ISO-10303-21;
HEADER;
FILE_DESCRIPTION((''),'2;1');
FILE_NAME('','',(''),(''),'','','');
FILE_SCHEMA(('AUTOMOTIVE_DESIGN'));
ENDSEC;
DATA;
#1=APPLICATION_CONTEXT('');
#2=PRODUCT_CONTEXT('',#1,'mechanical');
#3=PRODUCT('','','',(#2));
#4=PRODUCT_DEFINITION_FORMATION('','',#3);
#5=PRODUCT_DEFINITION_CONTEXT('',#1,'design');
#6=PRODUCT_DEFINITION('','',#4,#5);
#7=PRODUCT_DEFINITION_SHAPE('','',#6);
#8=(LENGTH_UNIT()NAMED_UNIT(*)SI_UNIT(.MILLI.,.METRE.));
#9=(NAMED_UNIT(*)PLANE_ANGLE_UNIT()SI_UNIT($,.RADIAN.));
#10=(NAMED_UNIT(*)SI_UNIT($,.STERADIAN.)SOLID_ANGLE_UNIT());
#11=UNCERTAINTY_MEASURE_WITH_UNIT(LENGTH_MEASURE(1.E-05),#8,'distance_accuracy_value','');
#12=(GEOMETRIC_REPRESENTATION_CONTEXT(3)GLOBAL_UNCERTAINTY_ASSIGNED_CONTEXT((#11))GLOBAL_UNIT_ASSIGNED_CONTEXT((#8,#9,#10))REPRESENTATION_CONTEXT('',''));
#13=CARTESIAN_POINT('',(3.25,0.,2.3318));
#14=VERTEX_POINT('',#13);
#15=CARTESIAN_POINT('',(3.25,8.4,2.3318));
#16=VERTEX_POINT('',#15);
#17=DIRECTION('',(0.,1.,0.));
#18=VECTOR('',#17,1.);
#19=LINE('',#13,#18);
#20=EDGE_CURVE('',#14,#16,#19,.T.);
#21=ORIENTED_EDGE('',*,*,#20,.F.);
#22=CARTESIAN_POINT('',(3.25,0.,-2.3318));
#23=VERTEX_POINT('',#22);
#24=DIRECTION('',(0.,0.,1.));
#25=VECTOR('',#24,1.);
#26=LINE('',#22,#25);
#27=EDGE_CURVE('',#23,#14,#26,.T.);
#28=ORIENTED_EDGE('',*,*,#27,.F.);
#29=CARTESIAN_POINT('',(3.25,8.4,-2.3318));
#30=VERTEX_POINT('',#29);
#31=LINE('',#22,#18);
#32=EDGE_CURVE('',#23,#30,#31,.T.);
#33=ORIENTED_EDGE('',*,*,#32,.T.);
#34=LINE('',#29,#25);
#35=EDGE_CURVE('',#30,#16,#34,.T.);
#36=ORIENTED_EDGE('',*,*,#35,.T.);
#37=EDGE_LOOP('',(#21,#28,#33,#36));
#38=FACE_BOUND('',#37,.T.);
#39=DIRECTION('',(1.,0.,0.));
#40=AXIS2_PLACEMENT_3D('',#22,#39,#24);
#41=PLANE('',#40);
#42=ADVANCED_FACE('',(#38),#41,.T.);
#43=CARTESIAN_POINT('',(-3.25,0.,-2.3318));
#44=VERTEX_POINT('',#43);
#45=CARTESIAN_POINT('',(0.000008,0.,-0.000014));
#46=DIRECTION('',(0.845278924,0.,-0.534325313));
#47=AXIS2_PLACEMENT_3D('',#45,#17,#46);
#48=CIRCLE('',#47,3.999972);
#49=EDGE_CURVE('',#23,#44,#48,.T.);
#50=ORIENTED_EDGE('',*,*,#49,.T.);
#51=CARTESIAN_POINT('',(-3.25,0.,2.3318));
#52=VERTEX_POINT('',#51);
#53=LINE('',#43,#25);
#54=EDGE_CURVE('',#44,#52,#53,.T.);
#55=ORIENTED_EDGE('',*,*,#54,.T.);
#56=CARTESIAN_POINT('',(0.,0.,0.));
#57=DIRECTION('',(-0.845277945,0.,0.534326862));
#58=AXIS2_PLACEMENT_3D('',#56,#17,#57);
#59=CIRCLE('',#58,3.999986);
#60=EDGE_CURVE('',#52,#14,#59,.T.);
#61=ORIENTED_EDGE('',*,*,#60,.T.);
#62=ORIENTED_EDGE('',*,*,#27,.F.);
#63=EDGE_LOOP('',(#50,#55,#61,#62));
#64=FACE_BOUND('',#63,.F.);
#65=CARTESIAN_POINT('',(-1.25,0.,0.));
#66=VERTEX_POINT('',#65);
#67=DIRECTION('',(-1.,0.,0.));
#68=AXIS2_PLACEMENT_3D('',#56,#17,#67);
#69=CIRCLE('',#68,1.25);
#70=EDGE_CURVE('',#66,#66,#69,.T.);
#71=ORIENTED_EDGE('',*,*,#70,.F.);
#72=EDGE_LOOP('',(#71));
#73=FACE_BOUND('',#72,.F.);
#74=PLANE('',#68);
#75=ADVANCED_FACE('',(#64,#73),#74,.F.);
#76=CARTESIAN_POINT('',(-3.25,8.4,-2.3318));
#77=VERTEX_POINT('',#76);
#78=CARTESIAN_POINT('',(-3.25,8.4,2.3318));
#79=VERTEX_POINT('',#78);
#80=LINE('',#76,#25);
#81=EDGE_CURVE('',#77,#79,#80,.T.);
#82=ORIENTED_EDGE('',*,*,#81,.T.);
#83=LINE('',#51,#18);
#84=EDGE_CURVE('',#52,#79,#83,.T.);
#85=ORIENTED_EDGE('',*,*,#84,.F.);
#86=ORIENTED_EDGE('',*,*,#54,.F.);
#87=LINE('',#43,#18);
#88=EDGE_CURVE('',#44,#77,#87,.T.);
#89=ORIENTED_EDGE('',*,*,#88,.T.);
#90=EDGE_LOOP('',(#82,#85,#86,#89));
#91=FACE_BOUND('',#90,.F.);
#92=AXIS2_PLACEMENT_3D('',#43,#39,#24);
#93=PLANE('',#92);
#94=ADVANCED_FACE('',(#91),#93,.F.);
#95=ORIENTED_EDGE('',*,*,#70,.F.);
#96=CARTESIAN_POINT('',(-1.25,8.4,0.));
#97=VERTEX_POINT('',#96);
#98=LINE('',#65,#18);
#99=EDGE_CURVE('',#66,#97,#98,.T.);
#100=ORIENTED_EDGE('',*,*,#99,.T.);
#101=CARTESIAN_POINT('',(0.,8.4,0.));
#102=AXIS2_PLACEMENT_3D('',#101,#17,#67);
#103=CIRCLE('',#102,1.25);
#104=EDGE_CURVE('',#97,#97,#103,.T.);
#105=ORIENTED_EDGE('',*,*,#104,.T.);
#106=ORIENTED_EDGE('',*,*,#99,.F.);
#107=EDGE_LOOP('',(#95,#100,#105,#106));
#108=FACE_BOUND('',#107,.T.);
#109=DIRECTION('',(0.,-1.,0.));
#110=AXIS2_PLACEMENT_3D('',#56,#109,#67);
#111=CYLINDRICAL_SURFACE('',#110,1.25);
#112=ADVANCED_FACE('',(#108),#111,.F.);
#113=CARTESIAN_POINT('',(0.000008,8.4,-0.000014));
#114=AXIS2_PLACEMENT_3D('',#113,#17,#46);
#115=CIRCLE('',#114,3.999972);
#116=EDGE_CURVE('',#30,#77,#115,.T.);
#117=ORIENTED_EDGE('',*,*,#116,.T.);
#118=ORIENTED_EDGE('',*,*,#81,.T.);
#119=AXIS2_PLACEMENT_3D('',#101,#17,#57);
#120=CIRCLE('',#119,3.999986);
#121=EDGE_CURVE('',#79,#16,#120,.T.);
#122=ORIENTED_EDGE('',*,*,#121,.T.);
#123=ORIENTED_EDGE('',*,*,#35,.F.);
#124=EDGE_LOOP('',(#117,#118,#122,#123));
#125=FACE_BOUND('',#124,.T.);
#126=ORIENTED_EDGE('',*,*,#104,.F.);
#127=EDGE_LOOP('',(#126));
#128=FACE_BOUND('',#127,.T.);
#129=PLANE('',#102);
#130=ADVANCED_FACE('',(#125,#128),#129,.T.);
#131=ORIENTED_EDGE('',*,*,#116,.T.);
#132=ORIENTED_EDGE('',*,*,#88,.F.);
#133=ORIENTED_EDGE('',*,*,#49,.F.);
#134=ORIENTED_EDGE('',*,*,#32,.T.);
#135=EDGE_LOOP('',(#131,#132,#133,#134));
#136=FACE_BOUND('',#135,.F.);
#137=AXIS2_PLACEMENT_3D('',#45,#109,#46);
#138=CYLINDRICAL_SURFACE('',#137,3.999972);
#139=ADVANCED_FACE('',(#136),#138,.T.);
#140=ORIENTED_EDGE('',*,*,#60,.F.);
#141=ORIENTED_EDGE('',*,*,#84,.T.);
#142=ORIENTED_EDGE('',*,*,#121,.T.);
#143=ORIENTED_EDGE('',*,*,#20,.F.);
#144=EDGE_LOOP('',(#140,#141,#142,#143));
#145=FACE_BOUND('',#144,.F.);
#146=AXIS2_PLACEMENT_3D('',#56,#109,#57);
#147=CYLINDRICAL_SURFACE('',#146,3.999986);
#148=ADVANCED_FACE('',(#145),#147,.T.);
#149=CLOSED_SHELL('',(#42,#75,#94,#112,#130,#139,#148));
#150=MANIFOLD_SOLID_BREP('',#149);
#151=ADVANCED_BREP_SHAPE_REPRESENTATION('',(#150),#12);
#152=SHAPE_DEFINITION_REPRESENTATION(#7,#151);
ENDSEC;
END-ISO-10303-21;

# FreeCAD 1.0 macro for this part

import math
import FreeCAD as App
import Part
import Sketcher

doc = App.newDocument("Part")
body = doc.addObject("PartDesign::Body", "Body")

# Sketch on XZ plane
sketch1 = body.newObject("Sketcher::SketchObject", "Sketch")
sketch1.AttachmentSupport = (doc.getObject("XZ_Plane"), [""])
sketch1.MapMode = "FlatFace"
sketch1.addGeometry(Part.ArcOfCircle(Part.Circle(App.Vector(0, 0, 0), App.Vector(0, 0, 1), 4), math.radians(-144), math.radians(-36)), False)
sketch1.addGeometry(Part.LineSegment(App.Vector(-3.2, -2.3, 0), App.Vector(-3.2, 2.3, 0)), False)
sketch1.addGeometry(Part.ArcOfCircle(Part.Circle(App.Vector(0, 0, 0), App.Vector(0, 0, 1), 4), math.radians(36), math.radians(144)), False)
sketch1.addGeometry(Part.LineSegment(App.Vector(3.2, 2.3, 0), App.Vector(3.2, -2.3, 0)), False)
sketch1.addGeometry(Part.Circle(App.Vector(0, 0, 0), App.Vector(0, 0, 1), 1.2), False)
sketch1.addConstraint(Sketcher.Constraint("Coincident", 0, 1, 1, 1))
sketch1.addConstraint(Sketcher.Constraint("Coincident", 1, 2, 2, 2))
sketch1.addConstraint(Sketcher.Constraint("Coincident", 2, 1, 3, 1))
sketch1.addConstraint(Sketcher.Constraint("Coincident", 3, 2, 0, 2))
sketch1.addConstraint(Sketcher.Constraint("Vertical", 1))
sketch1.addConstraint(Sketcher.Constraint("Vertical", 3))
sketch1.addConstraint(Sketcher.Constraint("Coincident", 0, 3, -1, 1))
sketch1.addConstraint(Sketcher.Constraint("Coincident", 2, 3, -1, 1))
sketch1.addConstraint(Sketcher.Constraint("Coincident", 4, 3, -1, 1))
sketch1.addConstraint(Sketcher.Constraint("Equal", 0, 2))
sketch1.addConstraint(Sketcher.Constraint("Horizontal", 1, 2, 2, 1))
sketch1.addConstraint(Sketcher.Constraint("Radius", 0, 4.0))
sketch1.addConstraint(Sketcher.Constraint("Diameter", 4, 2.5))
sketch1.addConstraint(Sketcher.Constraint("DistanceX", 1, 2, 2, 1, 6.5))
pad1 = body.newObject("PartDesign::Pad", "Pad")
pad1.Profile = sketch1
pad1.Length = 8.4
pad1.Reversed = True

doc.recompute()
